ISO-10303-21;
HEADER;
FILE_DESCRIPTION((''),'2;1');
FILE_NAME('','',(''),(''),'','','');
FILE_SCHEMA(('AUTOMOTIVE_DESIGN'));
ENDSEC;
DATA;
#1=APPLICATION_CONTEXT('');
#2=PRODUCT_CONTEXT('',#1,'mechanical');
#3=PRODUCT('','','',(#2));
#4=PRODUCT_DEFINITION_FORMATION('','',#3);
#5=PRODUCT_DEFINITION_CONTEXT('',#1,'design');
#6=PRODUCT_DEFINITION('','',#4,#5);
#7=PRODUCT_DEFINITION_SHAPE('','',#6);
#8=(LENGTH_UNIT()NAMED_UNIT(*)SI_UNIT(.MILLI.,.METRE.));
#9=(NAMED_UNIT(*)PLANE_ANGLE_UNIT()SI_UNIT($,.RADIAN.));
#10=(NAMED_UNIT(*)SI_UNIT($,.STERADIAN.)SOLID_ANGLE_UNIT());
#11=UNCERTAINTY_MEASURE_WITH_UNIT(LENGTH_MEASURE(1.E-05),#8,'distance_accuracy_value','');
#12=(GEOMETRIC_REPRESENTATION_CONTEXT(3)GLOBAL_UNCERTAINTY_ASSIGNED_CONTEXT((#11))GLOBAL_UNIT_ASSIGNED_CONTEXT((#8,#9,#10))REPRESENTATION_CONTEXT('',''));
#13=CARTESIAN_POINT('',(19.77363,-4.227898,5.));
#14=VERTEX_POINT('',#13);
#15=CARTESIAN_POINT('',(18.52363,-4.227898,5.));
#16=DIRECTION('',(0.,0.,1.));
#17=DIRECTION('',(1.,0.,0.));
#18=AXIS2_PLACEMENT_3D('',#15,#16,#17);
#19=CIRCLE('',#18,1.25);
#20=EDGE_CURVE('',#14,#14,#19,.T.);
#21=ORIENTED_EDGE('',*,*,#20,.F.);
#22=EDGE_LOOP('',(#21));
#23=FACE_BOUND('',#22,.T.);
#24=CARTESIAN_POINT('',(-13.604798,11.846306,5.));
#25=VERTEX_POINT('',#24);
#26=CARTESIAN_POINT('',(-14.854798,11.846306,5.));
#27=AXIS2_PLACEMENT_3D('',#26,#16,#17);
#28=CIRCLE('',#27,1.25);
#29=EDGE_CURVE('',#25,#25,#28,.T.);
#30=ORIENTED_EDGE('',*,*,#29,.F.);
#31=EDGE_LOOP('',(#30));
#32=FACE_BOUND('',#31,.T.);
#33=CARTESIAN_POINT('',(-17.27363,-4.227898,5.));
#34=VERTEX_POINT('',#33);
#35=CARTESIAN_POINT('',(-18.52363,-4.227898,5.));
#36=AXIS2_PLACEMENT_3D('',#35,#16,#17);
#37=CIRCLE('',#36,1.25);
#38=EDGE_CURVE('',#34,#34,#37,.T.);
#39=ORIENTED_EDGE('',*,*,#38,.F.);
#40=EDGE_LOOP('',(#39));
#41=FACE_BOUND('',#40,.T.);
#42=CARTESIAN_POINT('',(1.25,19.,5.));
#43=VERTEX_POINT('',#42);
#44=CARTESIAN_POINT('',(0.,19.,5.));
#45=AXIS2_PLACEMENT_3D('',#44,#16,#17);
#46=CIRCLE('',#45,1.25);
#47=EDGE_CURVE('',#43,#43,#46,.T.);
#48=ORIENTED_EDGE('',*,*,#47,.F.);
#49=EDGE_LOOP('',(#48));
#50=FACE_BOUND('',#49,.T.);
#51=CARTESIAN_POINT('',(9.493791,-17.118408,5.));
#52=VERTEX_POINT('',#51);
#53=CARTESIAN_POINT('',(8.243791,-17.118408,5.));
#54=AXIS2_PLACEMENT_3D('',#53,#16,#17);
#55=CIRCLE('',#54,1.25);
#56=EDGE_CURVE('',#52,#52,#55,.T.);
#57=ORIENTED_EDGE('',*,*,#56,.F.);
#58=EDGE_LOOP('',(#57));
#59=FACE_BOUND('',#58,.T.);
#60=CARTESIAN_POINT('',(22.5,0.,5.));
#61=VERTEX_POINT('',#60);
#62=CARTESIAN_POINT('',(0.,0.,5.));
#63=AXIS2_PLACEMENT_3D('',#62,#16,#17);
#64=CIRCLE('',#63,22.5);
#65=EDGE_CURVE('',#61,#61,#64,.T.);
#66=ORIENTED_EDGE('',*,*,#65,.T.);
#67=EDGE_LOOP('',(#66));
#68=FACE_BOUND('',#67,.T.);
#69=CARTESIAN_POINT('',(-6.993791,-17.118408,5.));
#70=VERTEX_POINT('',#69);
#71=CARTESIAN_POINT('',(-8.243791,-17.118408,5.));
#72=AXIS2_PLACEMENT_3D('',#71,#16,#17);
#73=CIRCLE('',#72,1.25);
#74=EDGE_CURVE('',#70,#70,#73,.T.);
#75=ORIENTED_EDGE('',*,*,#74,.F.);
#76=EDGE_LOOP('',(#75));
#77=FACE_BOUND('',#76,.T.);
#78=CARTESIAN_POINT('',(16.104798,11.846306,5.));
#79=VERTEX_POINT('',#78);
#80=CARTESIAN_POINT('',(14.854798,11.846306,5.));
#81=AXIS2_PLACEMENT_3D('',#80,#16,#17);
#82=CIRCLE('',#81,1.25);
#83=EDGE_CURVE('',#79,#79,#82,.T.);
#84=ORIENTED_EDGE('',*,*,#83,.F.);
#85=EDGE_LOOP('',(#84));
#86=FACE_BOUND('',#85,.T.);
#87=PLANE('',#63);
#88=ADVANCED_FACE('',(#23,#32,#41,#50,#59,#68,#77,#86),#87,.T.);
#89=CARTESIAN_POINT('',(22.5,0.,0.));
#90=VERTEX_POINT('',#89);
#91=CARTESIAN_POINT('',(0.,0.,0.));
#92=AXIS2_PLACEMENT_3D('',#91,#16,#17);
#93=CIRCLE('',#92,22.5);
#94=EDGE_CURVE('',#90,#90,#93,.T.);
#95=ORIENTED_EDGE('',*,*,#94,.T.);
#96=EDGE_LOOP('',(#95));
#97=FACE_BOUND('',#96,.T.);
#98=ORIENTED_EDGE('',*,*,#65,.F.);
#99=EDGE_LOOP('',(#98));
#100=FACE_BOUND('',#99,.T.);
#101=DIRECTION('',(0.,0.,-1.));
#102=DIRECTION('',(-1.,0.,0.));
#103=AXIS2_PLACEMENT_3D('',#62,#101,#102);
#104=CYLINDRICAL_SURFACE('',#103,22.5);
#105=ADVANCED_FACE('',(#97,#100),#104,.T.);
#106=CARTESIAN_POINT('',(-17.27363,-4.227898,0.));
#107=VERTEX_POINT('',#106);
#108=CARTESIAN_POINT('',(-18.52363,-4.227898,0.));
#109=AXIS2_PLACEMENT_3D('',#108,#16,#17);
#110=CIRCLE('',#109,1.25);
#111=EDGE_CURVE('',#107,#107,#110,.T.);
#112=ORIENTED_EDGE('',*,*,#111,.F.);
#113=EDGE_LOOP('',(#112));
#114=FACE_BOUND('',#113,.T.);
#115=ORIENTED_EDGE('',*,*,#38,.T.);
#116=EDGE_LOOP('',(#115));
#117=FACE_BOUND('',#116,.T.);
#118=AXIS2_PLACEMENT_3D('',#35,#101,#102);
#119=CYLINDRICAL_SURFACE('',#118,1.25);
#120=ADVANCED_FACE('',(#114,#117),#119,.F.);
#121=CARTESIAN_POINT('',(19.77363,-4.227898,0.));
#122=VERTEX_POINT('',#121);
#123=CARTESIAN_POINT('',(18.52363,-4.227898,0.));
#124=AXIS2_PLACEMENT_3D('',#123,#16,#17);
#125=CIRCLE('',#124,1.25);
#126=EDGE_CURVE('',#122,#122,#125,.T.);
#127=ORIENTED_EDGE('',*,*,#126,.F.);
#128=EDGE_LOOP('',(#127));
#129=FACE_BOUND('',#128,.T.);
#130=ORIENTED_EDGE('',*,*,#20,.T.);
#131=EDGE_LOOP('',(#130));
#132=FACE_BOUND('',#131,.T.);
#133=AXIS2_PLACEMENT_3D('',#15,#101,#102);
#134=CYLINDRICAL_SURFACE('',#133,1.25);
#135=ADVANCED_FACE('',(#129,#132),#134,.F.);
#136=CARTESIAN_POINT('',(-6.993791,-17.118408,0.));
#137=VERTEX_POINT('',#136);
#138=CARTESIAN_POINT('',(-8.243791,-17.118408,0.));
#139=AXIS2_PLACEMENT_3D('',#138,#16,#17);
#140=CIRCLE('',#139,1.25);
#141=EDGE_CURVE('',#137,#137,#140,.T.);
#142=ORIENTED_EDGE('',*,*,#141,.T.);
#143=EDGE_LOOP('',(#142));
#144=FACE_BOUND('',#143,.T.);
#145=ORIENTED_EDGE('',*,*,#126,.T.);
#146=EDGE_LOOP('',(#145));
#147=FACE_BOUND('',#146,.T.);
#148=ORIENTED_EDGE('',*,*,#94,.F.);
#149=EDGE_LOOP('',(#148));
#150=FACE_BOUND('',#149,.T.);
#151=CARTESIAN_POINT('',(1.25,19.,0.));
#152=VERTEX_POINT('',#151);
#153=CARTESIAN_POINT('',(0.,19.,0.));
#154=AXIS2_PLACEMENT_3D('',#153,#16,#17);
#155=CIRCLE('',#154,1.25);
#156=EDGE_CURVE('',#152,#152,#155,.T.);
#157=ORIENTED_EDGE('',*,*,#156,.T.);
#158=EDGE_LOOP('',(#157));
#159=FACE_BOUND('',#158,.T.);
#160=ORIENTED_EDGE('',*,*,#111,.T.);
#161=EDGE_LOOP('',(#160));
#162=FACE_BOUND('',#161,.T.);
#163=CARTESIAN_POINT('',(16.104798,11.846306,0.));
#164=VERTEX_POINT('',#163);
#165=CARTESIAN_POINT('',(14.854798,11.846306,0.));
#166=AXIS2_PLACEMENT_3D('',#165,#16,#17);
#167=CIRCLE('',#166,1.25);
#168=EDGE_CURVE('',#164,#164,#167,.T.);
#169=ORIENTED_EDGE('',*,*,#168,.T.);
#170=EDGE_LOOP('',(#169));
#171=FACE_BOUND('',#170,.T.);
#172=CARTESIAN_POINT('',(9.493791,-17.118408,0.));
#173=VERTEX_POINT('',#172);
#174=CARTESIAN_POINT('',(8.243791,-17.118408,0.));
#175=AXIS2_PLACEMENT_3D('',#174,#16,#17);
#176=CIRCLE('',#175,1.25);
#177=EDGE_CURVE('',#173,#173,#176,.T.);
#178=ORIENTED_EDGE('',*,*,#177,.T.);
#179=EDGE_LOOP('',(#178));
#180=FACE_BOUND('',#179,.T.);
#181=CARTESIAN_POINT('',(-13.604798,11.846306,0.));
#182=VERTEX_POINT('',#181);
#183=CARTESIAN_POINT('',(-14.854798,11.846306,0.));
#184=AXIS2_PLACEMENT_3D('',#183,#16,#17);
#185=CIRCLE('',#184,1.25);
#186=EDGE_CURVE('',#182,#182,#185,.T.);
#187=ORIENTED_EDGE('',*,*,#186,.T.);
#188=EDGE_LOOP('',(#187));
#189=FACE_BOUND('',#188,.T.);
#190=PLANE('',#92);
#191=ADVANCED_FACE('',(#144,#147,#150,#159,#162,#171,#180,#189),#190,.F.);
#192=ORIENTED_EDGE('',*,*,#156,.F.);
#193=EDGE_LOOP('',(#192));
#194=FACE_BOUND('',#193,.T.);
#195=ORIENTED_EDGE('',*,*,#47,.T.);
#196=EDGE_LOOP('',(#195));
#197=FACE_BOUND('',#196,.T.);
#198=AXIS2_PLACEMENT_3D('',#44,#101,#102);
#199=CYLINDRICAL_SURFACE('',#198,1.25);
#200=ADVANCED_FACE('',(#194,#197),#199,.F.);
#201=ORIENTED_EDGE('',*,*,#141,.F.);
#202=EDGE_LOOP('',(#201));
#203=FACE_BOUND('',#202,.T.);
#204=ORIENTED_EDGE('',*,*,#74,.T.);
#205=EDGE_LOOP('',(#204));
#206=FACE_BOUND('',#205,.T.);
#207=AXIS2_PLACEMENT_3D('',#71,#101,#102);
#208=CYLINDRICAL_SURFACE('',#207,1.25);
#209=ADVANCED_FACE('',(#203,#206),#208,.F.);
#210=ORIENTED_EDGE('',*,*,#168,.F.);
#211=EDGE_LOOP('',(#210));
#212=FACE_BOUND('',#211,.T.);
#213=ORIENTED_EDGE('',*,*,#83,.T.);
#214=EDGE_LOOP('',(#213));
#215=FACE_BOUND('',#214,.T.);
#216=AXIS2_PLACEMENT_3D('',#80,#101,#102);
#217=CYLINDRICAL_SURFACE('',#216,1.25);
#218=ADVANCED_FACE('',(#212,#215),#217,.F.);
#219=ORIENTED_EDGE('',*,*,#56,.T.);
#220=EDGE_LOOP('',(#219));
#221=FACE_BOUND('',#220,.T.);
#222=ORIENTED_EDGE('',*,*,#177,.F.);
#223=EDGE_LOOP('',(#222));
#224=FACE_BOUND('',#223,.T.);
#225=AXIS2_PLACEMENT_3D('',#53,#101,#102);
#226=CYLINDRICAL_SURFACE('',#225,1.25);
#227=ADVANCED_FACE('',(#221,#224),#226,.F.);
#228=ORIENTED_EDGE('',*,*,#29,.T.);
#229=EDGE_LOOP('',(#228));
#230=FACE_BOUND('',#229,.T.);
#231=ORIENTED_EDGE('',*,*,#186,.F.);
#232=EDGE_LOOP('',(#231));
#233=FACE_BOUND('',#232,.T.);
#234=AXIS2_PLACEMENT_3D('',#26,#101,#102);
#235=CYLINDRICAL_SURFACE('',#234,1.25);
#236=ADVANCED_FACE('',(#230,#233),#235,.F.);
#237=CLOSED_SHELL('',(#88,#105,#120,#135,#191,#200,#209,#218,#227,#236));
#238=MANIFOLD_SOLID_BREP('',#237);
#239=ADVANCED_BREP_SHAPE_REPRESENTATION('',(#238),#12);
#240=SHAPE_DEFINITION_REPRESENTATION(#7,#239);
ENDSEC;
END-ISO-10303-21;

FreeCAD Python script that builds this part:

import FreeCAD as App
import Part
import Sketcher

V = App.Vector

doc = App.newDocument("Part")
body = doc.addObject("PartDesign::Body", "Body")

sketch1 = body.newObject("Sketcher::SketchObject", "Sketch")
sketch1.AttachmentSupport = (doc.getObject("XY_Plane"), [""])
sketch1.MapMode = "FlatFace"
sketch1.addGeometry([
    Part.Circle(V(0, 0, 0), V(0, 0, 1), 22.5),
    Part.Circle(V(-8.2, -17.1, 0), V(0, 0, 1), 1.2),
    Part.Circle(V(-18.5, -4.2, 0), V(0, 0, 1), 1.2),
    Part.Circle(V(8.2, -17.1, 0), V(0, 0, 1), 1.2),
    Part.Circle(V(18.5, -4.2, 0), V(0, 0, 1), 1.2),
    Part.Circle(V(-14.9, 11.8, 0), V(0, 0, 1), 1.2),
    Part.Circle(V(0, 19, 0), V(0, 0, 1), 1.2),
    Part.Circle(V(14.9, 11.8, 0), V(0, 0, 1), 1.2),
], False)
sketch1.addConstraint([
    Sketcher.Constraint("Coincident", 0, 3, -1, 1),
    Sketcher.Constraint("Equal", 1, 2),
    Sketcher.Constraint("Equal", 2, 3),
    Sketcher.Constraint("Equal", 3, 4),
    Sketcher.Constraint("Equal", 4, 5),
    Sketcher.Constraint("Equal", 5, 6),
    Sketcher.Constraint("Equal", 6, 7),
    Sketcher.Constraint("Symmetric", 1, 3, 3, 3, -2),
    Sketcher.Constraint("Symmetric", 2, 3, 4, 3, -2),
    Sketcher.Constraint("Symmetric", 5, 3, 7, 3, -2),
    Sketcher.Constraint("PointOnObject", 6, 3, -2),
    Sketcher.Constraint("Diameter", 0, 45.0),
    Sketcher.Constraint("Diameter", 1, 2.5),
    Sketcher.Constraint("DistanceY", -1, 1, 6, 3, 19.0),
    Sketcher.Constraint("DistanceX", 5, 3, -1, 1, 14.854798),
    Sketcher.Constraint("DistanceX", 1, 3, -1, 1, 8.243791),
    Sketcher.Constraint("DistanceY", 1, 3, -1, 1, 17.118408),
    Sketcher.Constraint("DistanceX", 2, 3, -1, 1, 18.52363),
    Sketcher.Constraint("DistanceY", 1, 3, 2, 3, 12.890511),
    Sketcher.Constraint("DistanceY", -1, 1, 5, 3, 11.846306),
])
pad1 = body.newObject("PartDesign::Pad", "Pad")
pad1.Profile = sketch1
pad1.Length = 5

doc.recompute()
